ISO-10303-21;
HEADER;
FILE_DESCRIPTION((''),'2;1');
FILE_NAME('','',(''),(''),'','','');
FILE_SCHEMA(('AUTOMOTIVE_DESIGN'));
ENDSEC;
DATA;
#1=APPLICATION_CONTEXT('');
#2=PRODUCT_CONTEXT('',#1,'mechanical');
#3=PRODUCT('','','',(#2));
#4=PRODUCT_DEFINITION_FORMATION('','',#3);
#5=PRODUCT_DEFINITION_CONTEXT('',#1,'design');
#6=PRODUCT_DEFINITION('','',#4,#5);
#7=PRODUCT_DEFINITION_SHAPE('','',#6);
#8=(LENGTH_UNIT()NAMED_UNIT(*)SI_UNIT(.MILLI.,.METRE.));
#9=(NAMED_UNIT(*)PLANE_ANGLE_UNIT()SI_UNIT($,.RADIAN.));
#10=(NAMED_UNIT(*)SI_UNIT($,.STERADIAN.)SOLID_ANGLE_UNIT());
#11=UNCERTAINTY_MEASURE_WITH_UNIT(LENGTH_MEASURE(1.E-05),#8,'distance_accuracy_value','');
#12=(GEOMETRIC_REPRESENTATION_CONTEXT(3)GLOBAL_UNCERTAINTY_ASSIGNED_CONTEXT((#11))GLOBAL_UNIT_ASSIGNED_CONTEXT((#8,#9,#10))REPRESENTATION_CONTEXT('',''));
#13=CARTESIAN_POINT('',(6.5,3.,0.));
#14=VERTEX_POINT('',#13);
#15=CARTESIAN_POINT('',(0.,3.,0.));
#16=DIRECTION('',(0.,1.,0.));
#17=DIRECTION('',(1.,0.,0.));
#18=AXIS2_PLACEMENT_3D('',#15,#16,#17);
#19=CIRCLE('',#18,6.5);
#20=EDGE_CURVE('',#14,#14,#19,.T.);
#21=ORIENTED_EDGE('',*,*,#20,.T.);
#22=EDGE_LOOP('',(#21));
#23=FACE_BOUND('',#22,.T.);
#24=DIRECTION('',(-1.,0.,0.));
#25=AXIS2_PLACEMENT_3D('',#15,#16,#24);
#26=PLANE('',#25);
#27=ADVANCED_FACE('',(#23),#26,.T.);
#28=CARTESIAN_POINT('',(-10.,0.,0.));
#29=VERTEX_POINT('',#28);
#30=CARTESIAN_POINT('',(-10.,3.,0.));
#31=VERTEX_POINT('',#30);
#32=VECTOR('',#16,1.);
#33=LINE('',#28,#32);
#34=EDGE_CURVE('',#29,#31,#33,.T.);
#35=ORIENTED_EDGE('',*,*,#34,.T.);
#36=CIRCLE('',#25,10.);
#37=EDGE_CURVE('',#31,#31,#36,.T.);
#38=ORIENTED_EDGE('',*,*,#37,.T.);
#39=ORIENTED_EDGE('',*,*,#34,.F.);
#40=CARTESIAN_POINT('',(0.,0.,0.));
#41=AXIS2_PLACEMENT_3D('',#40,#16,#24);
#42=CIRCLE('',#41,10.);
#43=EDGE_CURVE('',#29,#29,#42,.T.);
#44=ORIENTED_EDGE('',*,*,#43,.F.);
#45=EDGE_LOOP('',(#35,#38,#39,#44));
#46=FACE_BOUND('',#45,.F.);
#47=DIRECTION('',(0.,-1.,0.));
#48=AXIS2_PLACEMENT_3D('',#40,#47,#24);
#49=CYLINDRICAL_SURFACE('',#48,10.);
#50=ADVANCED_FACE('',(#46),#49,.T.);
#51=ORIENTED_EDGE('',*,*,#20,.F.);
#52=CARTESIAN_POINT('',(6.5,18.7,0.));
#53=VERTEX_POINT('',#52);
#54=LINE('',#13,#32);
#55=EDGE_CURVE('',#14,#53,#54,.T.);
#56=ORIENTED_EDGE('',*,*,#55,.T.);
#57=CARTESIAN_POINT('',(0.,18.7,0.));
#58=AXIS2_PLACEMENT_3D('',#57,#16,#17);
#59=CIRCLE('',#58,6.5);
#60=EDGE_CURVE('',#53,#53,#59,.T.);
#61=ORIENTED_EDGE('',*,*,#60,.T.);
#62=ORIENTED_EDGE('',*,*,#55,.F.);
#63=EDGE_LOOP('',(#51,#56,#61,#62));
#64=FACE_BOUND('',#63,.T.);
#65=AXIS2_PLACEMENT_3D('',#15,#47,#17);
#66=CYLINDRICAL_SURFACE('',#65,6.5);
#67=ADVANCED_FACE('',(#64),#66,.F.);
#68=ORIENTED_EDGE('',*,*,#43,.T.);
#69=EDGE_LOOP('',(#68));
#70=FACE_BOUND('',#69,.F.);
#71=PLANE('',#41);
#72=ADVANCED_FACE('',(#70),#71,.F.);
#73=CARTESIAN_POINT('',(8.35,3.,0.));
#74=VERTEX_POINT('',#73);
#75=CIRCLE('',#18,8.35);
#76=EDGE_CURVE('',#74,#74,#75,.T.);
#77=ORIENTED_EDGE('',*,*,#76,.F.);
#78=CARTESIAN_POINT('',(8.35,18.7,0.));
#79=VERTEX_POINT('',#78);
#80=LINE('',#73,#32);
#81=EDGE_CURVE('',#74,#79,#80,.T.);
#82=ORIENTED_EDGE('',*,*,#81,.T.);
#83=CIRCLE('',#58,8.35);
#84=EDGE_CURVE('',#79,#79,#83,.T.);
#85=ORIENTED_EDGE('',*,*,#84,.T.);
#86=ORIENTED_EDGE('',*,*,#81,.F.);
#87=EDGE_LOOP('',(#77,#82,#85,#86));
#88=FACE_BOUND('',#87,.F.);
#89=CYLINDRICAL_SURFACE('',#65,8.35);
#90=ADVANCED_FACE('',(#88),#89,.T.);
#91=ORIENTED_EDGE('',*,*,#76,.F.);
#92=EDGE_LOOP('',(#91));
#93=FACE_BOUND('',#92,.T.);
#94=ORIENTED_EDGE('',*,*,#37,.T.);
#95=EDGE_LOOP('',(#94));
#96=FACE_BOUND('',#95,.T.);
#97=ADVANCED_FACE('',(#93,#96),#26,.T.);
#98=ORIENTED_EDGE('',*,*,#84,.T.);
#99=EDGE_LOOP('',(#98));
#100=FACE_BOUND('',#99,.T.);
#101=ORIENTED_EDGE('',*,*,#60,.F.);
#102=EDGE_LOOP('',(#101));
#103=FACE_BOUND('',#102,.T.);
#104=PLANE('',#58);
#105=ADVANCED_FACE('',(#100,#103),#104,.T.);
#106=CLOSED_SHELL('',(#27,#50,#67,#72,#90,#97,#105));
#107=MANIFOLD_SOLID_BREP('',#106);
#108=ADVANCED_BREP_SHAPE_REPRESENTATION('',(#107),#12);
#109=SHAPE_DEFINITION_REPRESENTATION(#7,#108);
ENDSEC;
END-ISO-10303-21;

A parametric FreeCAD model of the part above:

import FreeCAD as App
import Part
import Sketcher
from FreeCAD import Vector

doc = App.newDocument("Part")
params = doc.addObject("Spreadsheet::Sheet", "Params")
for row, (alias, value) in enumerate([
    ("sketch1_diameter", "20 mm"),
    ("pad1_length", "3 mm"),
    ("sketch2_diameter", "13 mm"),
    ("sketch2_diameter2", "16.7 mm"),
    ("pad2_length", "15.7 mm"),
], start=1):
    params.set(f"A{row}", alias)
    params.set(f"B{row}", "=" + value)
    params.setAlias(f"B{row}", alias)

body = doc.addObject("PartDesign::Body", "Body")

# Sketch on XZ plane
sketch1 = body.newObject("Sketcher::SketchObject", "Sketch")
sketch1.AttachmentSupport = (doc.getObject("XZ_Plane"), [""])
sketch1.MapMode = "FlatFace"
sketch1.addGeometry(Part.Circle(Vector(0, 0, 0), Vector(0, 0, 1), 10), False)
sketch1.addConstraint([
    Sketcher.Constraint("Coincident", 0, 3, -1, 1),
    Sketcher.Constraint("Diameter", 0, 20.0),
])
sketch1.setExpression("Constraints[1]", "Params.sketch1_diameter")
pad1 = body.newObject("PartDesign::Pad", "Pad")
pad1.Profile = sketch1
pad1.setExpression("Length", "Params.pad1_length")
pad1.Reversed = True

# Sketch on XZ plane
sketch2 = body.newObject("Sketcher::SketchObject", "Sketch001")
sketch2.AttachmentSupport = (doc.getObject("XZ_Plane"), [""])
sketch2.MapMode = "FlatFace"
sketch2.AttachmentOffset = App.Placement(Vector(0, 0, -3), App.Rotation())
sketch2.addGeometry([
    Part.Circle(Vector(0, 0, 0), Vector(0, 0, 1), 8),
    Part.Circle(Vector(0, 0, 0), Vector(0, 0, 1), 6),
], False)
sketch2.addConstraint([
    Sketcher.Constraint("Coincident", 0, 3, -1, 1),
    Sketcher.Constraint("Coincident", 1, 3, -1, 1),
    Sketcher.Constraint("Diameter", 1, 13.0),
    Sketcher.Constraint("Diameter", 0, 16.7),
])
sketch2.setExpression("Constraints[2]", "Params.sketch2_diameter")
sketch2.setExpression("Constraints[3]", "Params.sketch2_diameter2")
pad2 = body.newObject("PartDesign::Pad", "Pad001")
pad2.Profile = sketch2
pad2.setExpression("Length", "Params.pad2_length")
pad2.Reversed = True

doc.recompute()
